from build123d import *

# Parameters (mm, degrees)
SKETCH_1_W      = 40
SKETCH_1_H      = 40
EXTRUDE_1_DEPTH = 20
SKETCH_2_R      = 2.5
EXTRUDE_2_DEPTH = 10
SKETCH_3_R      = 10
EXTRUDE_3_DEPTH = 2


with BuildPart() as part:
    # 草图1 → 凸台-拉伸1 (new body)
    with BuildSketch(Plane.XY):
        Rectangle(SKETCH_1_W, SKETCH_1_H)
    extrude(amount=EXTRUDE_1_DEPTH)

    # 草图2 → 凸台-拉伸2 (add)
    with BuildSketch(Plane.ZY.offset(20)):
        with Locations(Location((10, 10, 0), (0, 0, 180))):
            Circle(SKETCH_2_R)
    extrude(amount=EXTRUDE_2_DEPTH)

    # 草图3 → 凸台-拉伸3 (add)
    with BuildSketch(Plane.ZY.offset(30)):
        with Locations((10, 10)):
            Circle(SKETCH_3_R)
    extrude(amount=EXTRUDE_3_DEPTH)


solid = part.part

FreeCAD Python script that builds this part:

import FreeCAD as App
import Part
import Sketcher
from FreeCAD import Vector
Q = App.Units.Quantity


def add_polygon(sketch, points):
    """Adds a closed chain of lines whose ends are joined by coincident constraints."""
    first, n = sketch.GeometryCount, len(points)
    for a, b in zip(points, points[1:] + points[:1]):
        sketch.addGeometry(Part.LineSegment(App.Vector(*a, 0), App.Vector(*b, 0)), False)
    for i in range(n):
        sketch.addConstraint(Sketcher.Constraint("Coincident", first + i, 2, first + (i + 1) % n, 1))

doc = App.newDocument("Part")
body = doc.addObject("PartDesign::Body", "Body")

# Sketch on XY plane
sketch1 = body.newObject("Sketcher::SketchObject", "Sketch")
sketch1.AttachmentSupport = (doc.getObject("XY_Plane"), [""])
sketch1.MapMode = "FlatFace"
add_polygon(sketch1, [(-20, 20), (-20, -20), (20, -20), (20, 20)])  # lines 0-3
sketch1.addConstraint(Sketcher.Constraint("Vertical", 0))
sketch1.addConstraint(Sketcher.Constraint("Horizontal", 1))
sketch1.addConstraint(Sketcher.Constraint("Vertical", 2))
sketch1.addConstraint(Sketcher.Constraint("Horizontal", 3))
sketch1.addConstraint(Sketcher.Constraint("Symmetric", 0, 2, 2, 2, -1, 1))
sketch1.addConstraint(Sketcher.Constraint("Equal", 3, 0))
sketch1.addConstraint(Sketcher.Constraint("DistanceX", 1, 1, 1, 2, Q("40 mm")))
pad1 = body.newObject("PartDesign::Pad", "Pad")
pad1.Profile = sketch1
pad1.Length = 20

# Sketch on YZ plane
sketch2 = body.newObject("Sketcher::SketchObject", "Sketch001")
sketch2.AttachmentSupport = (doc.getObject("YZ_Plane"), [""])
sketch2.MapMode = "FlatFace"
sketch2.AttachmentOffset = App.Placement(Vector(0, 0, -20), App.Rotation())
sketch2.addGeometry(Part.Circle(Vector(10, 10, 0), Vector(0, 0, 1), 2.5), False)
sketch2.addConstraint(Sketcher.Constraint("Diameter", 0, Q("5 mm")))
sketch2.addConstraint(Sketcher.Constraint("DistanceX", -1, 1, 0, 3, Q("10 mm")))
sketch2.addConstraint(Sketcher.Constraint("DistanceY", -1, 1, 0, 3, Q("10 mm")))
pad2 = body.newObject("PartDesign::Pad", "Pad001")
pad2.Profile = sketch2
pad2.Length = 10
pad2.Reversed = True

# Sketch on YZ plane
sketch3 = body.newObject("Sketcher::SketchObject", "Sketch002")
sketch3.AttachmentSupport = (doc.getObject("YZ_Plane"), [""])
sketch3.MapMode = "FlatFace"
sketch3.AttachmentOffset = App.Placement(Vector(0, 0, -30), App.Rotation())
sketch3.addGeometry(Part.Circle(Vector(10, 10, 0), Vector(0, 0, 1), 10), False)
sketch3.addConstraint(Sketcher.Constraint("Diameter", 0, Q("20 mm")))
sketch3.addConstraint(Sketcher.Constraint("DistanceX", -1, 1, 0, 3, Q("10 mm")))
sketch3.addConstraint(Sketcher.Constraint("DistanceY", -1, 1, 0, 3, Q("10 mm")))
pad3 = body.newObject("PartDesign::Pad", "Pad002")
pad3.Profile = sketch3
pad3.Length = 2
pad3.Reversed = True

doc.recompute()
